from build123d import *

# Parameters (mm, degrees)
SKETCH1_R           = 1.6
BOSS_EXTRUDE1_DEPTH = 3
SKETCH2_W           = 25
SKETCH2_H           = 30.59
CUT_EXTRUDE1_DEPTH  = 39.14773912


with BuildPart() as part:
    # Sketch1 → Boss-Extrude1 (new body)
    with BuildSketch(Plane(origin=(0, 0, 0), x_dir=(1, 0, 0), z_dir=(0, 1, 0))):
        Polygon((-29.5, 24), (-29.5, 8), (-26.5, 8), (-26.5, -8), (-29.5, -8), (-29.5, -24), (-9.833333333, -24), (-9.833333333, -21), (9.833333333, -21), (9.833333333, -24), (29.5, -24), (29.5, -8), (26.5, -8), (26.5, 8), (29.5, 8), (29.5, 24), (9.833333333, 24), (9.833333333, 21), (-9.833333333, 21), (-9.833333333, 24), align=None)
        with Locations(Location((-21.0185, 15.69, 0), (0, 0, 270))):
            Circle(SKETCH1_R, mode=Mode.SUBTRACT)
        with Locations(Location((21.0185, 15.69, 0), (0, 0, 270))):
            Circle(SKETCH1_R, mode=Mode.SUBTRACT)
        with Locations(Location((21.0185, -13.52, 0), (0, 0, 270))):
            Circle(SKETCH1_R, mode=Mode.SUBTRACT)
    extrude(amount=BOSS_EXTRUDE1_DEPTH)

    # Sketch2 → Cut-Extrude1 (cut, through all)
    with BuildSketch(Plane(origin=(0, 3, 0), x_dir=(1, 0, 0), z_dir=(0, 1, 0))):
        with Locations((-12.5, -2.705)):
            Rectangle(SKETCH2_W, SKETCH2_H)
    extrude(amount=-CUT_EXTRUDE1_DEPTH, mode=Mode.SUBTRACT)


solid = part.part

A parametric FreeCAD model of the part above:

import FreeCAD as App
import Part
import Sketcher

V = App.Vector
Q = App.Units.Quantity

doc = App.newDocument("Part")
body = doc.addObject("PartDesign::Body", "Body")

sketch1 = body.newObject("Sketcher::SketchObject", "Sketch")
sketch1.AttachmentSupport = (doc.getObject("XZ_Plane"), [""])
sketch1.MapMode = "FlatFace"
sketch1.addGeometry(Part.LineSegment(V(-29.5, -24, 0), V(-29.5, -8, 0)), False)
sketch1.addGeometry(Part.LineSegment(V(-29.5, -8, 0), V(-26.5, -8, 0)), False)
sketch1.addGeometry(Part.LineSegment(V(-26.5, -8, 0), V(-26.5, 8, 0)), False)
sketch1.addGeometry(Part.LineSegment(V(-26.5, 8, 0), V(-29.5, 8, 0)), False)
sketch1.addGeometry(Part.LineSegment(V(-29.5, 8, 0), V(-29.5, 24, 0)), False)
sketch1.addGeometry(Part.LineSegment(V(-29.5, 24, 0), V(-9.8, 24, 0)), False)
sketch1.addGeometry(Part.LineSegment(V(-9.8, 24, 0), V(-9.8, 21, 0)), False)
sketch1.addGeometry(Part.LineSegment(V(-9.8, 21, 0), V(9.8, 21, 0)), False)
sketch1.addGeometry(Part.LineSegment(V(9.8, 21, 0), V(9.8, 24, 0)), False)
sketch1.addGeometry(Part.LineSegment(V(9.8, 24, 0), V(29.5, 24, 0)), False)
sketch1.addGeometry(Part.LineSegment(V(29.5, 24, 0), V(29.5, 8, 0)), False)
sketch1.addGeometry(Part.LineSegment(V(29.5, 8, 0), V(26.5, 8, 0)), False)
sketch1.addGeometry(Part.LineSegment(V(26.5, 8, 0), V(26.5, -8, 0)), False)
sketch1.addGeometry(Part.LineSegment(V(26.5, -8, 0), V(29.5, -8, 0)), False)
sketch1.addGeometry(Part.LineSegment(V(29.5, -8, 0), V(29.5, -24, 0)), False)
sketch1.addGeometry(Part.LineSegment(V(29.5, -24, 0), V(9.8, -24, 0)), False)
sketch1.addGeometry(Part.LineSegment(V(9.8, -24, 0), V(9.8, -21, 0)), False)
sketch1.addGeometry(Part.LineSegment(V(9.8, -21, 0), V(-9.8, -21, 0)), False)
sketch1.addGeometry(Part.LineSegment(V(-9.8, -21, 0), V(-9.8, -24, 0)), False)
sketch1.addGeometry(Part.LineSegment(V(-9.8, -24, 0), V(-29.5, -24, 0)), False)
sketch1.addGeometry(Part.Circle(V(21, 13.5, 0), V(0, 0, 1), 1.6), False)
sketch1.addGeometry(Part.Circle(V(-21, -15.7, 0), V(0, 0, 1), 1.6), False)
sketch1.addGeometry(Part.Circle(V(21, -15.7, 0), V(0, 0, 1), 1.6), False)
sketch1.addConstraint(Sketcher.Constraint("Coincident", 0, 2, 1, 1))
sketch1.addConstraint(Sketcher.Constraint("Coincident", 1, 2, 2, 1))
sketch1.addConstraint(Sketcher.Constraint("Coincident", 2, 2, 3, 1))
sketch1.addConstraint(Sketcher.Constraint("Coincident", 3, 2, 4, 1))
sketch1.addConstraint(Sketcher.Constraint("Coincident", 4, 2, 5, 1))
sketch1.addConstraint(Sketcher.Constraint("Coincident", 5, 2, 6, 1))
sketch1.addConstraint(Sketcher.Constraint("Coincident", 6, 2, 7, 1))
sketch1.addConstraint(Sketcher.Constraint("Coincident", 7, 2, 8, 1))
sketch1.addConstraint(Sketcher.Constraint("Coincident", 8, 2, 9, 1))
sketch1.addConstraint(Sketcher.Constraint("Coincident", 9, 2, 10, 1))
sketch1.addConstraint(Sketcher.Constraint("Coincident", 10, 2, 11, 1))
sketch1.addConstraint(Sketcher.Constraint("Coincident", 11, 2, 12, 1))
sketch1.addConstraint(Sketcher.Constraint("Coincident", 12, 2, 13, 1))
sketch1.addConstraint(Sketcher.Constraint("Coincident", 13, 2, 14, 1))
sketch1.addConstraint(Sketcher.Constraint("Coincident", 14, 2, 15, 1))
sketch1.addConstraint(Sketcher.Constraint("Coincident", 15, 2, 16, 1))
sketch1.addConstraint(Sketcher.Constraint("Coincident", 16, 2, 17, 1))
sketch1.addConstraint(Sketcher.Constraint("Coincident", 17, 2, 18, 1))
sketch1.addConstraint(Sketcher.Constraint("Coincident", 18, 2, 19, 1))
sketch1.addConstraint(Sketcher.Constraint("Coincident", 19, 2, 0, 1))
sketch1.addConstraint(Sketcher.Constraint("Vertical", 0))
sketch1.addConstraint(Sketcher.Constraint("Horizontal", 1))
sketch1.addConstraint(Sketcher.Constraint("Vertical", 2))
sketch1.addConstraint(Sketcher.Constraint("Horizontal", 3))
sketch1.addConstraint(Sketcher.Constraint("Vertical", 4))
sketch1.addConstraint(Sketcher.Constraint("Horizontal", 5))
sketch1.addConstraint(Sketcher.Constraint("Vertical", 6))
sketch1.addConstraint(Sketcher.Constraint("Horizontal", 7))
sketch1.addConstraint(Sketcher.Constraint("Vertical", 8))
sketch1.addConstraint(Sketcher.Constraint("Horizontal", 9))
sketch1.addConstraint(Sketcher.Constraint("Vertical", 10))
sketch1.addConstraint(Sketcher.Constraint("Horizontal", 11))
sketch1.addConstraint(Sketcher.Constraint("Vertical", 12))
sketch1.addConstraint(Sketcher.Constraint("Horizontal", 13))
sketch1.addConstraint(Sketcher.Constraint("Vertical", 14))
sketch1.addConstraint(Sketcher.Constraint("Horizontal", 15))
sketch1.addConstraint(Sketcher.Constraint("Vertical", 16))
sketch1.addConstraint(Sketcher.Constraint("Horizontal", 17))
sketch1.addConstraint(Sketcher.Constraint("Vertical", 18))
sketch1.addConstraint(Sketcher.Constraint("Horizontal", 19))
sketch1.addConstraint(Sketcher.Constraint("Equal", 20, 21))
sketch1.addConstraint(Sketcher.Constraint("Equal", 21, 22))
sketch1.addConstraint(Sketcher.Constraint("Symmetric", 0, 2, 10, 2, -1, 1))
sketch1.addConstraint(Sketcher.Constraint("Symmetric", 2, 2, 12, 2, -1, 1))
sketch1.addConstraint(Sketcher.Constraint("Symmetric", 4, 2, 14, 2, -1, 1))
sketch1.addConstraint(Sketcher.Constraint("Symmetric", 6, 2, 16, 2, -1, 1))
sketch1.addConstraint(Sketcher.Constraint("Symmetric", 8, 2, 18, 2, -1, 1))
sketch1.addConstraint(Sketcher.Constraint("Symmetric", 21, 3, 22, 3, -2))
sketch1.addConstraint(Sketcher.Constraint("Symmetric", 5, 2, 8, 2, -2))
sketch1.addConstraint(Sketcher.Constraint("Symmetric", 3, 2, 10, 2, -2))
sketch1.addConstraint(Sketcher.Constraint("Vertical", 20, 3, 22, 3))
sketch1.addConstraint(Sketcher.Constraint("Equal", 5, 7))
sketch1.addConstraint(Sketcher.Constraint("Equal", 0, 2))
sketch1.addConstraint(Sketcher.Constraint("Equal", 13, 6))
sketch1.addConstraint(Sketcher.Constraint("Diameter", 20, Q("3.2 mm")))
sketch1.addConstraint(Sketcher.Constraint("DistanceX", 1, 1, 1, 2, Q("3 mm")))
sketch1.addConstraint(Sketcher.Constraint("DistanceY", 0, 1, 0, 2, Q("16 mm")))
sketch1.addConstraint(Sketcher.Constraint("DistanceX", 0, 2, -1, 1, Q("29.5 mm")))
sketch1.addConstraint(Sketcher.Constraint("DistanceY", -1, 1, 20, 3, Q("13.52 mm")))
sketch1.addConstraint(Sketcher.Constraint("DistanceY", 21, 3, -1, 1, Q("15.69 mm")))
sketch1.addConstraint(Sketcher.Constraint("DistanceX", 21, 3, 20, 3, Q("42.037 mm")))
pad1 = body.newObject("PartDesign::Pad", "Pad")
pad1.Profile = sketch1
pad1.Length = 3
pad1.Reversed = True

sketch2 = body.newObject("Sketcher::SketchObject", "Sketch001")
sketch2.AttachmentSupport = (doc.getObject("XZ_Plane"), [""])
sketch2.MapMode = "FlatFace"
sketch2.AttachmentOffset = App.Placement(V(0, 0, -3), App.Rotation())
sketch2.addGeometry(Part.LineSegment(V(-25, -13, 0), V(-25, 18, 0)), False)
sketch2.addGeometry(Part.LineSegment(V(-25, 18, 0), V(0, 18, 0)), False)
sketch2.addGeometry(Part.LineSegment(V(0, 18, 0), V(0, -13, 0)), False)
sketch2.addGeometry(Part.LineSegment(V(0, -13, 0), V(-25, -13, 0)), False)
sketch2.addConstraint(Sketcher.Constraint("Coincident", 0, 2, 1, 1))
sketch2.addConstraint(Sketcher.Constraint("Coincident", 1, 2, 2, 1))
sketch2.addConstraint(Sketcher.Constraint("Coincident", 2, 2, 3, 1))
sketch2.addConstraint(Sketcher.Constraint("Coincident", 3, 2, 0, 1))
sketch2.addConstraint(Sketcher.Constraint("Vertical", 0))
sketch2.addConstraint(Sketcher.Constraint("Horizontal", 1))
sketch2.addConstraint(Sketcher.Constraint("Vertical", 2))
sketch2.addConstraint(Sketcher.Constraint("Horizontal", 3))
sketch2.addConstraint(Sketcher.Constraint("PointOnObject", 1, 2, -2))
sketch2.addConstraint(Sketcher.Constraint("DistanceX", 1, 1, 1, 2, Q("25 mm")))
sketch2.addConstraint(Sketcher.Constraint("DistanceY", -1, 1, 0, 2, Q("18 mm")))
sketch2.addConstraint(Sketcher.Constraint("DistanceY", 0, 1, 0, 2, Q("30.59 mm")))
pocket1 = body.newObject("PartDesign::Pocket", "Pocket")
pocket1.Profile = sketch2
pocket1.Type = "ThroughAll"
pocket1.Reversed = True

doc.recompute()
